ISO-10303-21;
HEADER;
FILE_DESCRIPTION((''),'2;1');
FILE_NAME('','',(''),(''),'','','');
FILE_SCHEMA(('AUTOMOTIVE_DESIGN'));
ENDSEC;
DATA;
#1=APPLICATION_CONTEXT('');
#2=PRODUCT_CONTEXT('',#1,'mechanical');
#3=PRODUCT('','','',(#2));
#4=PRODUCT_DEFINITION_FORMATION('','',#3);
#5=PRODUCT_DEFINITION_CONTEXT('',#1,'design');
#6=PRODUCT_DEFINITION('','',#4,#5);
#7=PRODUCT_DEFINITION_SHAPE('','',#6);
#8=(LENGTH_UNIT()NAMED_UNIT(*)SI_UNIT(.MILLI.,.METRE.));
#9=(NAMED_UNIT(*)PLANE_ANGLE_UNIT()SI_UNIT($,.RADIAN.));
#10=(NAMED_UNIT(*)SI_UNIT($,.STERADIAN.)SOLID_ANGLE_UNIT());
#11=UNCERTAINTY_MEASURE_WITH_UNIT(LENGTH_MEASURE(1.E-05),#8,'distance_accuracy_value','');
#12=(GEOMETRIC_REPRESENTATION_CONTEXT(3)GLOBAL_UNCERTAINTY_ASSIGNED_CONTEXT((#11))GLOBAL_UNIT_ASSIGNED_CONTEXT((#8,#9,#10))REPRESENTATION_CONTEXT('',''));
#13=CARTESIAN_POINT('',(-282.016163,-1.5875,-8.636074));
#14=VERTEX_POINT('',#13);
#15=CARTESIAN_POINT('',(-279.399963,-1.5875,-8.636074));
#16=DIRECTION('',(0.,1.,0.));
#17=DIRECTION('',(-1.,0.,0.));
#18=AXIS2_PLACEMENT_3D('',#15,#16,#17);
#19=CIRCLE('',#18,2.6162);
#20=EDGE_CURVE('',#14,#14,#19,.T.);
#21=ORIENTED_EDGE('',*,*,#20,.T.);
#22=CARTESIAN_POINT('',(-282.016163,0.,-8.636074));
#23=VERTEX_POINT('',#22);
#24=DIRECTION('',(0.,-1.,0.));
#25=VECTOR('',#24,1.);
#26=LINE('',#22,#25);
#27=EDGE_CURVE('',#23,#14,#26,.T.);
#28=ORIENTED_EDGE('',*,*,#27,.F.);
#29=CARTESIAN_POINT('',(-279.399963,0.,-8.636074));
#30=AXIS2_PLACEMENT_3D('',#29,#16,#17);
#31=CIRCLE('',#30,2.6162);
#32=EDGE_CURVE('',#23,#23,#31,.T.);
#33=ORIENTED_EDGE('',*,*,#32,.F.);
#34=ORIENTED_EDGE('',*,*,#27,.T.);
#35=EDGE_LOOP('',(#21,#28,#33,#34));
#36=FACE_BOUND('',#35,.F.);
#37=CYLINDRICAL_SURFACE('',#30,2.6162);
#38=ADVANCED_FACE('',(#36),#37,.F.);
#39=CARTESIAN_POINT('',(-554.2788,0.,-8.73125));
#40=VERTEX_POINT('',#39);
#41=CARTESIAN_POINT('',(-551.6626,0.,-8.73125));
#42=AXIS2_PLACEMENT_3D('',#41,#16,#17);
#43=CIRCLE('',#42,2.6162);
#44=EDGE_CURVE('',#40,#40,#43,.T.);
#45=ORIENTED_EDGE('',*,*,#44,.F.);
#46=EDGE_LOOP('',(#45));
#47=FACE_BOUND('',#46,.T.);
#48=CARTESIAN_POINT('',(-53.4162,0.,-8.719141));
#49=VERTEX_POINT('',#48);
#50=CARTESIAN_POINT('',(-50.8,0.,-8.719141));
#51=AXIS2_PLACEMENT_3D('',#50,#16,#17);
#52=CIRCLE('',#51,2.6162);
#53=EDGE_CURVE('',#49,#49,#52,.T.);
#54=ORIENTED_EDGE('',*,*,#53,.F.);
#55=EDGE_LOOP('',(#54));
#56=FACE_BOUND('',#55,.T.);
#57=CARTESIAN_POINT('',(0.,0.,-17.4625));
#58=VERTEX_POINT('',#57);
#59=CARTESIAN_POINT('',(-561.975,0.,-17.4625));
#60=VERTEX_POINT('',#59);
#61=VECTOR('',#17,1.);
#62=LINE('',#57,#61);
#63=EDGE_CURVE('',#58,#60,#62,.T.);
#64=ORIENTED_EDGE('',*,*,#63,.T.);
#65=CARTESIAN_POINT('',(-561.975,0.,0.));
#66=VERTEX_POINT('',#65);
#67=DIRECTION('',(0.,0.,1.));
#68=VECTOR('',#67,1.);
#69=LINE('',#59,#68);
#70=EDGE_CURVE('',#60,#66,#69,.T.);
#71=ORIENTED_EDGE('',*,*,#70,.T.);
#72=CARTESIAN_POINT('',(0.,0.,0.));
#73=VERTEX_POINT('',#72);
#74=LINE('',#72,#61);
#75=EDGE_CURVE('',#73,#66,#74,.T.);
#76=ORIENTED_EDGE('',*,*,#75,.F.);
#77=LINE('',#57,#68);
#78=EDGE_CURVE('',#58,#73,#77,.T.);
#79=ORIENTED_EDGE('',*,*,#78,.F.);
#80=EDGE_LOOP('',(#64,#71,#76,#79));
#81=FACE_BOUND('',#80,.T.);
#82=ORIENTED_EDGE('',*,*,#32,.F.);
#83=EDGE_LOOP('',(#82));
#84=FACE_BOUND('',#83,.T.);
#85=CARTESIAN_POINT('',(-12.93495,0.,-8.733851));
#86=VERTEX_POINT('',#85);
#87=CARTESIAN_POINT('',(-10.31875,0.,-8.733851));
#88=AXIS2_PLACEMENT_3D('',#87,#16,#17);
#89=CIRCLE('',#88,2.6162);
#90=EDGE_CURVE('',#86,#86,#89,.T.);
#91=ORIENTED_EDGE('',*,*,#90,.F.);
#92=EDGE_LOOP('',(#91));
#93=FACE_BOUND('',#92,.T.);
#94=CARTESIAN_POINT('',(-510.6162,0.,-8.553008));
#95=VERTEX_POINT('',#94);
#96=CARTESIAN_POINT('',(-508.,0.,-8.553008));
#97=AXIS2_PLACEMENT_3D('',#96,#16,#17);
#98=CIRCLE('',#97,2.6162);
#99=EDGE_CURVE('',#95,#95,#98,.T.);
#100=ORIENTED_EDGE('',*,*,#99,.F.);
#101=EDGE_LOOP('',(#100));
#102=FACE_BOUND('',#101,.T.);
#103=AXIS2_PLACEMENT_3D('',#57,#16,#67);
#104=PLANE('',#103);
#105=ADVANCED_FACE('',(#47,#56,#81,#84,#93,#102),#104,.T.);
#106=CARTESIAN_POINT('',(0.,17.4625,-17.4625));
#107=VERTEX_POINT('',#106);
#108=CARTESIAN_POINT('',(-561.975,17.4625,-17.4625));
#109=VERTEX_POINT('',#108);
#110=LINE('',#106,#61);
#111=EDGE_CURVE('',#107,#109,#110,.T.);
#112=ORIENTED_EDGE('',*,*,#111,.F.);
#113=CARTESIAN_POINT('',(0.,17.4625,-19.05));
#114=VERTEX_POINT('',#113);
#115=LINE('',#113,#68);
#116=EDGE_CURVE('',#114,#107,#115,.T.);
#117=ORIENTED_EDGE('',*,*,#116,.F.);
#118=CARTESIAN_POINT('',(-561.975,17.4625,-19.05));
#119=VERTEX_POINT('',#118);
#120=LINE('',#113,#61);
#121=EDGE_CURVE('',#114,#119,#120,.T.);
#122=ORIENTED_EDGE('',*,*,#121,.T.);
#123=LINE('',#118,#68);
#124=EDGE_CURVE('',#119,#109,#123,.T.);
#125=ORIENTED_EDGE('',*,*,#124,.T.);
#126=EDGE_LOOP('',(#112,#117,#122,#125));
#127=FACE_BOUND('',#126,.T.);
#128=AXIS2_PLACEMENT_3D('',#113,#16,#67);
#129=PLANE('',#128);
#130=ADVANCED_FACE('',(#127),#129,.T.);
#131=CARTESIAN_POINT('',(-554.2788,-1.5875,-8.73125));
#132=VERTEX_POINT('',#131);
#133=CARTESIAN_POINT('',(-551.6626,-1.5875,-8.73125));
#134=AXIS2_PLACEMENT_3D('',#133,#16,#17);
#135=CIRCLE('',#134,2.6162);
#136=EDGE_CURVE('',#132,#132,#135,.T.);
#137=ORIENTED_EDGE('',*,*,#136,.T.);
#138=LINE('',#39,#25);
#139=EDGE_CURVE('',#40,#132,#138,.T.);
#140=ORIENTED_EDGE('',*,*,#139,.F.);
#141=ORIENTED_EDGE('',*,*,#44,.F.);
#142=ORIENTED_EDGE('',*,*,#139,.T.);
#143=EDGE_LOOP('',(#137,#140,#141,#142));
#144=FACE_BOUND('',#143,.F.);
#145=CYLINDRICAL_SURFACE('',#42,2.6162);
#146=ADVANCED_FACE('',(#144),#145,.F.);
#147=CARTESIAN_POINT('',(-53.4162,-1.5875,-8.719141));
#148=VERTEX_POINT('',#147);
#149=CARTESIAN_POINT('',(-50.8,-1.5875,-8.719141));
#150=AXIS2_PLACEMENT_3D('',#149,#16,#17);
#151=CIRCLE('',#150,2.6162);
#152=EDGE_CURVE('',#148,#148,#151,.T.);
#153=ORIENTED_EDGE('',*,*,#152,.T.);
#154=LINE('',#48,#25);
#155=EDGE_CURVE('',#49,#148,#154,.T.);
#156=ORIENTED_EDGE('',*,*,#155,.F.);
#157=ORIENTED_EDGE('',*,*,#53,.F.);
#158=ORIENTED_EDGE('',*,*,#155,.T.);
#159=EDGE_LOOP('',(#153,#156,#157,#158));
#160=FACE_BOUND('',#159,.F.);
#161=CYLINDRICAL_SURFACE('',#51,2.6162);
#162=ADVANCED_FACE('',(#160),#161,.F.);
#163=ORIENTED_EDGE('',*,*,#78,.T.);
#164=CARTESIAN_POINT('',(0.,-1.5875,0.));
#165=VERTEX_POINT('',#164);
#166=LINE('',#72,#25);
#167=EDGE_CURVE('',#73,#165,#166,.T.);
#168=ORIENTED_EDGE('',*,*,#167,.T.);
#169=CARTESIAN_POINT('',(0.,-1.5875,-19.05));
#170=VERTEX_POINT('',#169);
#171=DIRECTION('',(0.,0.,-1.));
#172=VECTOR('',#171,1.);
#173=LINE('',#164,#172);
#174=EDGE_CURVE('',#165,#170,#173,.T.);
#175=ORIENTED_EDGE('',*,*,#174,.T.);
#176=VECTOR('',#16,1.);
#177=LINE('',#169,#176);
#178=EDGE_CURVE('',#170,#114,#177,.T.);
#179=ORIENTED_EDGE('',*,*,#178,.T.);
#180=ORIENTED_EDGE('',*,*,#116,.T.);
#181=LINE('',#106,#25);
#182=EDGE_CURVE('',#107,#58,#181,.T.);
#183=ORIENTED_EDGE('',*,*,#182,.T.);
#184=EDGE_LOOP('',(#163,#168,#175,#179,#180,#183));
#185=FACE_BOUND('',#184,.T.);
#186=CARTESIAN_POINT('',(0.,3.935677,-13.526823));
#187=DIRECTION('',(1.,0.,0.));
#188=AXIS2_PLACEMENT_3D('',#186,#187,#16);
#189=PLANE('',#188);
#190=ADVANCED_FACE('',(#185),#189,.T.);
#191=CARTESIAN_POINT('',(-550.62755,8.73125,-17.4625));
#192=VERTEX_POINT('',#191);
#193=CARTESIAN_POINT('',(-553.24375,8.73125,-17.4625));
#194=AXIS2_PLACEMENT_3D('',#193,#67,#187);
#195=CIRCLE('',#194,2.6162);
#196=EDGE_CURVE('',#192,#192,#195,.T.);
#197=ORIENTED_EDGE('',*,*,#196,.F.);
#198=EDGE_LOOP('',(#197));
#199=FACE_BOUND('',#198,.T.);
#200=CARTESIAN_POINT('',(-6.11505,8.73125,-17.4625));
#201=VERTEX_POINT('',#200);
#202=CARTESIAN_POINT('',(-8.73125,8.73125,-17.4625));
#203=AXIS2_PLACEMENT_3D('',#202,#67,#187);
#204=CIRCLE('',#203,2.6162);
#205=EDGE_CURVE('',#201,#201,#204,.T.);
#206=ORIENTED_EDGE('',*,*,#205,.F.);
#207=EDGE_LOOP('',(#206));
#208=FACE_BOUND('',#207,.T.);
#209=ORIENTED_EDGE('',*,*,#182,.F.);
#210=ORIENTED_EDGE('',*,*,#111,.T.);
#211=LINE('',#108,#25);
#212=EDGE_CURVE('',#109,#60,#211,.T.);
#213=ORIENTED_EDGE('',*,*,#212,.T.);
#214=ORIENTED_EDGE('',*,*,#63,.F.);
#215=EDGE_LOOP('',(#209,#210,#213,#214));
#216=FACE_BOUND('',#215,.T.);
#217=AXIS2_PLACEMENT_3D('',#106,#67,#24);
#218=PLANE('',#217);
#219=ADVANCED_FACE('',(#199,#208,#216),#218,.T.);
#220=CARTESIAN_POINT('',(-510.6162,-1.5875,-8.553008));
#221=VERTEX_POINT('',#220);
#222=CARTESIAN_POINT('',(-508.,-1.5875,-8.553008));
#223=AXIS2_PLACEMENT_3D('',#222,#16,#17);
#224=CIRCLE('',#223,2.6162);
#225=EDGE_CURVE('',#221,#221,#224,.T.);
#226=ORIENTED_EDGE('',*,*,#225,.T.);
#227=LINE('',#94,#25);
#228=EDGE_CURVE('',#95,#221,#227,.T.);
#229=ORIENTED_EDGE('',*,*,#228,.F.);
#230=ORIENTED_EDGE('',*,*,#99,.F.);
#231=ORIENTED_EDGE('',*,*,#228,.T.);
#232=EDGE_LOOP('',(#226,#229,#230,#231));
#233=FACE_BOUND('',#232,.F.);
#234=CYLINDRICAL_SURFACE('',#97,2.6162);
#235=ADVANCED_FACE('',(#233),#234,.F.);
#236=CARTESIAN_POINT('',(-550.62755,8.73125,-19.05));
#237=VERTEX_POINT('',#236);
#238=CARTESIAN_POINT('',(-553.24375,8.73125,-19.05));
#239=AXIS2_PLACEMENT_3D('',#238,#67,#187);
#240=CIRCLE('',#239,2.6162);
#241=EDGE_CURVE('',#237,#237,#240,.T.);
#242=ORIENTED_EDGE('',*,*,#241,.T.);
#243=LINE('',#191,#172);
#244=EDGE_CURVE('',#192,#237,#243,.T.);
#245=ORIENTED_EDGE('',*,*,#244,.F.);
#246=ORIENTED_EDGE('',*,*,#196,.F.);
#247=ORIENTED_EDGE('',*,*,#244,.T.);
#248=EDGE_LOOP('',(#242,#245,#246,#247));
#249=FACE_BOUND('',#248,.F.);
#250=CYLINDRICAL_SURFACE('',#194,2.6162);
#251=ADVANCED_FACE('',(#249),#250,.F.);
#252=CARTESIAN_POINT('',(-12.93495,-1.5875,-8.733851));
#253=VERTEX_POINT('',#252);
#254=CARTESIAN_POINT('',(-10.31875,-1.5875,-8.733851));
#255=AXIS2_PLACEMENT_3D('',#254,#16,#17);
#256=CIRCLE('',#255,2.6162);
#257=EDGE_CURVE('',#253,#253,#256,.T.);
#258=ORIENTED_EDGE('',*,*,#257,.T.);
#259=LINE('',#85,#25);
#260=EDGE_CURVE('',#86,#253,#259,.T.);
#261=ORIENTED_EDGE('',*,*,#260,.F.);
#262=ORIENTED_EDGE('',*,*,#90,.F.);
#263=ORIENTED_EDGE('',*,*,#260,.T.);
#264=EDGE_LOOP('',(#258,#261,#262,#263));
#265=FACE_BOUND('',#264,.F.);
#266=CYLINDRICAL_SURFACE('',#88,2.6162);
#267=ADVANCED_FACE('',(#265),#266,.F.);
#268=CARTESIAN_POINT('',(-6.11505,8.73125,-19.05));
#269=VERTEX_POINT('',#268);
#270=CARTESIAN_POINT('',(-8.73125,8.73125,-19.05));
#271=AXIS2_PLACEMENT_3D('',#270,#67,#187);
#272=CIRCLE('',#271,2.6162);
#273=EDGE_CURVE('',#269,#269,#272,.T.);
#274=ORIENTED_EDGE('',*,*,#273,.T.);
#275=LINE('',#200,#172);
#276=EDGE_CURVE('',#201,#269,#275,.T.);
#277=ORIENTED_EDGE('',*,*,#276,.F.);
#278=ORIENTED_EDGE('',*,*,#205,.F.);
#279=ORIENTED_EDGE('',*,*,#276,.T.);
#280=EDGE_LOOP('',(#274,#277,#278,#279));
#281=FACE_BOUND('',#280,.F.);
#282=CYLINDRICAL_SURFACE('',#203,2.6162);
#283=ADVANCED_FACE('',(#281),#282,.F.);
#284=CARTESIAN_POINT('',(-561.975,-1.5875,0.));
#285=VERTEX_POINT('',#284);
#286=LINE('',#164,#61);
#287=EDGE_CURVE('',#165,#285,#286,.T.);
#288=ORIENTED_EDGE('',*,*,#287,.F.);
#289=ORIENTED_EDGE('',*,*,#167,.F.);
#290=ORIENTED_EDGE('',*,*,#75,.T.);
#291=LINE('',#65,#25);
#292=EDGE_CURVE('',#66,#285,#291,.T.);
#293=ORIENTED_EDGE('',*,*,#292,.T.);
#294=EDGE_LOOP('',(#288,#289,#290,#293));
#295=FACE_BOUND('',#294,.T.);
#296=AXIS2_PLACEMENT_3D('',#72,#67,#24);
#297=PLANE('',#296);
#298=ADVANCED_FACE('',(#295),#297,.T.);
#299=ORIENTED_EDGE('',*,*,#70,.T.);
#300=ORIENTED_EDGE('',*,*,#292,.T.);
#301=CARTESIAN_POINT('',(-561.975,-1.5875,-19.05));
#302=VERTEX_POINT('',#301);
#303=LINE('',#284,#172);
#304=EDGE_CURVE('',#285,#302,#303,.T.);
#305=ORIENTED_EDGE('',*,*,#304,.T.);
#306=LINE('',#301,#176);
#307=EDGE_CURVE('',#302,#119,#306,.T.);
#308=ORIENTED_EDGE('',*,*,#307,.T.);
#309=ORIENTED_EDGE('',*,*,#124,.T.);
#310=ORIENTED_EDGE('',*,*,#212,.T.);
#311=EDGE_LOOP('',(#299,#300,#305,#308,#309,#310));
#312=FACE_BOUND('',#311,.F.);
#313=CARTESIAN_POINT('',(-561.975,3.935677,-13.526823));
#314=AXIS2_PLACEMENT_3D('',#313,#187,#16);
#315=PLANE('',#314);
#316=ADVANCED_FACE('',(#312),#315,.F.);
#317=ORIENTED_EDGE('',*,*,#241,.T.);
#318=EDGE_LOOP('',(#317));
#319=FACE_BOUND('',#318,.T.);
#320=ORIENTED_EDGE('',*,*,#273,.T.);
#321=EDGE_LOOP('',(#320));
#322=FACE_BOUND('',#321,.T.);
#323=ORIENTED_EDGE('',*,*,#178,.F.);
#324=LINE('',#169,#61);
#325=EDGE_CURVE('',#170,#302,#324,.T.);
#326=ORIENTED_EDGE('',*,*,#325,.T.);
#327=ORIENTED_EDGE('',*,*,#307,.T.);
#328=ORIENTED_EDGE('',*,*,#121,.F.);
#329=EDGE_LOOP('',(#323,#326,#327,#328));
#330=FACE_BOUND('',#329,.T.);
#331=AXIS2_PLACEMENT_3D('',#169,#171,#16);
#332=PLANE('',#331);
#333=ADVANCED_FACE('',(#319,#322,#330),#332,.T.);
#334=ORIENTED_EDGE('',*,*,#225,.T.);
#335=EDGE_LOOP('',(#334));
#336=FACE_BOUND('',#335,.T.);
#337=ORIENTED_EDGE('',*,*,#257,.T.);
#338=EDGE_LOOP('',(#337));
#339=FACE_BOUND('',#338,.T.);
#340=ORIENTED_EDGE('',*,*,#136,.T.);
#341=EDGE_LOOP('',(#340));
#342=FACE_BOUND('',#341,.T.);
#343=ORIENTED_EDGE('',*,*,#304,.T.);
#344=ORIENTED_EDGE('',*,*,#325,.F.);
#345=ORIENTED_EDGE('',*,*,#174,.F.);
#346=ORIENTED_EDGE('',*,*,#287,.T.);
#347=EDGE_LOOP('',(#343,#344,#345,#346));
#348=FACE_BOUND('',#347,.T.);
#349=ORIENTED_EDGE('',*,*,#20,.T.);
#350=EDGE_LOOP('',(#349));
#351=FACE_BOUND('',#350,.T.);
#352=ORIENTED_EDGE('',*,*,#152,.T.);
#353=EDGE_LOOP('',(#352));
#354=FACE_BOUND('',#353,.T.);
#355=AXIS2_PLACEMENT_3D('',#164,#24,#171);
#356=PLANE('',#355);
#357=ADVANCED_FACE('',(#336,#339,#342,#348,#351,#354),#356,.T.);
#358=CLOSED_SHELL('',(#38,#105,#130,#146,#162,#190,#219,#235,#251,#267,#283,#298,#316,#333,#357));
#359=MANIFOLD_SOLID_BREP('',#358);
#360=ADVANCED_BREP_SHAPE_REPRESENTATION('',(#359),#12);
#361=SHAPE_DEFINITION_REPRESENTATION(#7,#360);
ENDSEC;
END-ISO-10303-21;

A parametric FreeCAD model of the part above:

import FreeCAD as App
import Part
import Sketcher
Q = App.Units.Quantity


def add_polygon(sketch, points):
    """Adds a closed chain of lines whose ends are joined by coincident constraints."""
    first, n = sketch.GeometryCount, len(points)
    for a, b in zip(points, points[1:] + points[:1]):
        sketch.addGeometry(Part.LineSegment(App.Vector(*a, 0), App.Vector(*b, 0)), False)
    for i in range(n):
        sketch.addConstraint(Sketcher.Constraint("Coincident", first + i, 2, first + (i + 1) % n, 1))

doc = App.newDocument("Part")
body = doc.addObject("PartDesign::Body", "Body")

sketch1 = body.newObject("Sketcher::SketchObject", "Sketch")
sketch1.AttachmentSupport = (doc.getObject("YZ_Plane"), [""])
sketch1.MapMode = "FlatFace"
add_polygon(sketch1, [(0, -17.5), (0, 0), (-1.6, 0), (-1.6, -19.1), (17.5, -19.1), (17.5, -17.5)])
sketch1.addConstraint([
    Sketcher.Constraint("Vertical", 0),
    Sketcher.Constraint("Horizontal", 1),
    Sketcher.Constraint("Vertical", 2),
    Sketcher.Constraint("Horizontal", 3),
    Sketcher.Constraint("Vertical", 4),
    Sketcher.Constraint("Horizontal", 5),
    Sketcher.Constraint("Coincident", 0, 2, -1, 1),
    Sketcher.Constraint("Equal", 5, 0),
    Sketcher.Constraint("Equal", 3, 2),
    Sketcher.Constraint("DistanceX", 3, 1, 3, 2, Q("0.75 in")),
    Sketcher.Constraint("DistanceX", 1, 2, 1, 1, Q("0.0625 in")),
])
pad1 = body.newObject("PartDesign::Pad", "Pad")
pad1.Profile = sketch1
pad1.Length = Q("22.125 in")
pad1.Reversed = True

sketch2 = body.newObject("Sketcher::SketchObject", "Sketch001")
sketch2.AttachmentSupport = (doc.getObject("XZ_Plane"), [""])
sketch2.MapMode = "FlatFace"
sketch2.addGeometry([
    Part.Circle(App.Vector(-10.3, -8.7, 0), App.Vector(0, 0, 1), 2.6),
    Part.Circle(App.Vector(-279.4, -8.6, 0), App.Vector(0, 0, 1), 2.6),
    Part.Circle(App.Vector(-551.7, -8.7, 0), App.Vector(0, 0, 1), 2.6),
    Part.Circle(App.Vector(-508, -8.6, 0), App.Vector(0, 0, 1), 2.6),
    Part.Circle(App.Vector(-50.8, -8.7, 0), App.Vector(0, 0, 1), 2.6),
], False)
sketch2.addConstraint([
    Sketcher.Constraint("Equal", 0, 1),
    Sketcher.Constraint("Equal", 1, 2),
    Sketcher.Constraint("Equal", 2, 3),
    Sketcher.Constraint("Equal", 3, 4),
    Sketcher.Constraint("Diameter", 0, Q("0.206 in")),
    Sketcher.Constraint("DistanceX", 3, 3, -1, 1, Q("20 in")),
    Sketcher.Constraint("DistanceX", 4, 3, -1, 1, Q("2 in")),
    Sketcher.Constraint("DistanceX", 0, 3, -1, 1, Q("0.40625 in")),
    Sketcher.Constraint("DistanceX", 2, 3, -1, 1, Q("21.719 in")),
    Sketcher.Constraint("DistanceY", 2, 3, -1, 1, Q("0.34375 in")),
    Sketcher.Constraint("DistanceY", 0, 3, 2, 3, 0.002601),
    Sketcher.Constraint("DistanceY", 4, 3, -1, 1, 8.719141),
    Sketcher.Constraint("DistanceY", 2, 3, 3, 3, 0.178242),
    Sketcher.Constraint("DistanceX", 1, 3, -1, 1, 279.399963),
    Sketcher.Constraint("DistanceY", 1, 3, -1, 1, 8.636074),
])
pocket1 = body.newObject("PartDesign::Pocket", "Pocket")
pocket1.Profile = sketch2
pocket1.Length = Q("1 in")
pocket1.Reversed = True

sketch3 = body.newObject("Sketcher::SketchObject", "Sketch002")
sketch3.AttachmentSupport = (doc.getObject("XY_Plane"), [""])
sketch3.MapMode = "FlatFace"
sketch3.AttachmentOffset = App.Placement(App.Vector(0, 0, -0.6875 * 25.4), App.Rotation())
sketch3.addGeometry([
    Part.Circle(App.Vector(-8.7, 8.7, 0), App.Vector(0, 0, 1), 2.6),
    Part.Circle(App.Vector(-553.2, 8.7, 0), App.Vector(0, 0, 1), 2.6),
], False)
sketch3.addConstraint([
    Sketcher.Constraint("Equal", 0, 1),
    Sketcher.Constraint("Horizontal", 0, 3, 1, 3),
    Sketcher.Constraint("Diameter", 0, Q("0.206 in")),
    Sketcher.Constraint("DistanceX", 0, 3, -1, 1, Q("0.34375 in")),
    Sketcher.Constraint("DistanceY", -1, 1, 0, 3, Q("0.34375 in")),
    Sketcher.Constraint("DistanceX", 1, 3, -1, 1, Q("21.78125 in")),
])
pocket2 = body.newObject("PartDesign::Pocket", "Pocket001")
pocket2.Profile = sketch3
pocket2.Length = Q("1 in")

doc.recompute()
